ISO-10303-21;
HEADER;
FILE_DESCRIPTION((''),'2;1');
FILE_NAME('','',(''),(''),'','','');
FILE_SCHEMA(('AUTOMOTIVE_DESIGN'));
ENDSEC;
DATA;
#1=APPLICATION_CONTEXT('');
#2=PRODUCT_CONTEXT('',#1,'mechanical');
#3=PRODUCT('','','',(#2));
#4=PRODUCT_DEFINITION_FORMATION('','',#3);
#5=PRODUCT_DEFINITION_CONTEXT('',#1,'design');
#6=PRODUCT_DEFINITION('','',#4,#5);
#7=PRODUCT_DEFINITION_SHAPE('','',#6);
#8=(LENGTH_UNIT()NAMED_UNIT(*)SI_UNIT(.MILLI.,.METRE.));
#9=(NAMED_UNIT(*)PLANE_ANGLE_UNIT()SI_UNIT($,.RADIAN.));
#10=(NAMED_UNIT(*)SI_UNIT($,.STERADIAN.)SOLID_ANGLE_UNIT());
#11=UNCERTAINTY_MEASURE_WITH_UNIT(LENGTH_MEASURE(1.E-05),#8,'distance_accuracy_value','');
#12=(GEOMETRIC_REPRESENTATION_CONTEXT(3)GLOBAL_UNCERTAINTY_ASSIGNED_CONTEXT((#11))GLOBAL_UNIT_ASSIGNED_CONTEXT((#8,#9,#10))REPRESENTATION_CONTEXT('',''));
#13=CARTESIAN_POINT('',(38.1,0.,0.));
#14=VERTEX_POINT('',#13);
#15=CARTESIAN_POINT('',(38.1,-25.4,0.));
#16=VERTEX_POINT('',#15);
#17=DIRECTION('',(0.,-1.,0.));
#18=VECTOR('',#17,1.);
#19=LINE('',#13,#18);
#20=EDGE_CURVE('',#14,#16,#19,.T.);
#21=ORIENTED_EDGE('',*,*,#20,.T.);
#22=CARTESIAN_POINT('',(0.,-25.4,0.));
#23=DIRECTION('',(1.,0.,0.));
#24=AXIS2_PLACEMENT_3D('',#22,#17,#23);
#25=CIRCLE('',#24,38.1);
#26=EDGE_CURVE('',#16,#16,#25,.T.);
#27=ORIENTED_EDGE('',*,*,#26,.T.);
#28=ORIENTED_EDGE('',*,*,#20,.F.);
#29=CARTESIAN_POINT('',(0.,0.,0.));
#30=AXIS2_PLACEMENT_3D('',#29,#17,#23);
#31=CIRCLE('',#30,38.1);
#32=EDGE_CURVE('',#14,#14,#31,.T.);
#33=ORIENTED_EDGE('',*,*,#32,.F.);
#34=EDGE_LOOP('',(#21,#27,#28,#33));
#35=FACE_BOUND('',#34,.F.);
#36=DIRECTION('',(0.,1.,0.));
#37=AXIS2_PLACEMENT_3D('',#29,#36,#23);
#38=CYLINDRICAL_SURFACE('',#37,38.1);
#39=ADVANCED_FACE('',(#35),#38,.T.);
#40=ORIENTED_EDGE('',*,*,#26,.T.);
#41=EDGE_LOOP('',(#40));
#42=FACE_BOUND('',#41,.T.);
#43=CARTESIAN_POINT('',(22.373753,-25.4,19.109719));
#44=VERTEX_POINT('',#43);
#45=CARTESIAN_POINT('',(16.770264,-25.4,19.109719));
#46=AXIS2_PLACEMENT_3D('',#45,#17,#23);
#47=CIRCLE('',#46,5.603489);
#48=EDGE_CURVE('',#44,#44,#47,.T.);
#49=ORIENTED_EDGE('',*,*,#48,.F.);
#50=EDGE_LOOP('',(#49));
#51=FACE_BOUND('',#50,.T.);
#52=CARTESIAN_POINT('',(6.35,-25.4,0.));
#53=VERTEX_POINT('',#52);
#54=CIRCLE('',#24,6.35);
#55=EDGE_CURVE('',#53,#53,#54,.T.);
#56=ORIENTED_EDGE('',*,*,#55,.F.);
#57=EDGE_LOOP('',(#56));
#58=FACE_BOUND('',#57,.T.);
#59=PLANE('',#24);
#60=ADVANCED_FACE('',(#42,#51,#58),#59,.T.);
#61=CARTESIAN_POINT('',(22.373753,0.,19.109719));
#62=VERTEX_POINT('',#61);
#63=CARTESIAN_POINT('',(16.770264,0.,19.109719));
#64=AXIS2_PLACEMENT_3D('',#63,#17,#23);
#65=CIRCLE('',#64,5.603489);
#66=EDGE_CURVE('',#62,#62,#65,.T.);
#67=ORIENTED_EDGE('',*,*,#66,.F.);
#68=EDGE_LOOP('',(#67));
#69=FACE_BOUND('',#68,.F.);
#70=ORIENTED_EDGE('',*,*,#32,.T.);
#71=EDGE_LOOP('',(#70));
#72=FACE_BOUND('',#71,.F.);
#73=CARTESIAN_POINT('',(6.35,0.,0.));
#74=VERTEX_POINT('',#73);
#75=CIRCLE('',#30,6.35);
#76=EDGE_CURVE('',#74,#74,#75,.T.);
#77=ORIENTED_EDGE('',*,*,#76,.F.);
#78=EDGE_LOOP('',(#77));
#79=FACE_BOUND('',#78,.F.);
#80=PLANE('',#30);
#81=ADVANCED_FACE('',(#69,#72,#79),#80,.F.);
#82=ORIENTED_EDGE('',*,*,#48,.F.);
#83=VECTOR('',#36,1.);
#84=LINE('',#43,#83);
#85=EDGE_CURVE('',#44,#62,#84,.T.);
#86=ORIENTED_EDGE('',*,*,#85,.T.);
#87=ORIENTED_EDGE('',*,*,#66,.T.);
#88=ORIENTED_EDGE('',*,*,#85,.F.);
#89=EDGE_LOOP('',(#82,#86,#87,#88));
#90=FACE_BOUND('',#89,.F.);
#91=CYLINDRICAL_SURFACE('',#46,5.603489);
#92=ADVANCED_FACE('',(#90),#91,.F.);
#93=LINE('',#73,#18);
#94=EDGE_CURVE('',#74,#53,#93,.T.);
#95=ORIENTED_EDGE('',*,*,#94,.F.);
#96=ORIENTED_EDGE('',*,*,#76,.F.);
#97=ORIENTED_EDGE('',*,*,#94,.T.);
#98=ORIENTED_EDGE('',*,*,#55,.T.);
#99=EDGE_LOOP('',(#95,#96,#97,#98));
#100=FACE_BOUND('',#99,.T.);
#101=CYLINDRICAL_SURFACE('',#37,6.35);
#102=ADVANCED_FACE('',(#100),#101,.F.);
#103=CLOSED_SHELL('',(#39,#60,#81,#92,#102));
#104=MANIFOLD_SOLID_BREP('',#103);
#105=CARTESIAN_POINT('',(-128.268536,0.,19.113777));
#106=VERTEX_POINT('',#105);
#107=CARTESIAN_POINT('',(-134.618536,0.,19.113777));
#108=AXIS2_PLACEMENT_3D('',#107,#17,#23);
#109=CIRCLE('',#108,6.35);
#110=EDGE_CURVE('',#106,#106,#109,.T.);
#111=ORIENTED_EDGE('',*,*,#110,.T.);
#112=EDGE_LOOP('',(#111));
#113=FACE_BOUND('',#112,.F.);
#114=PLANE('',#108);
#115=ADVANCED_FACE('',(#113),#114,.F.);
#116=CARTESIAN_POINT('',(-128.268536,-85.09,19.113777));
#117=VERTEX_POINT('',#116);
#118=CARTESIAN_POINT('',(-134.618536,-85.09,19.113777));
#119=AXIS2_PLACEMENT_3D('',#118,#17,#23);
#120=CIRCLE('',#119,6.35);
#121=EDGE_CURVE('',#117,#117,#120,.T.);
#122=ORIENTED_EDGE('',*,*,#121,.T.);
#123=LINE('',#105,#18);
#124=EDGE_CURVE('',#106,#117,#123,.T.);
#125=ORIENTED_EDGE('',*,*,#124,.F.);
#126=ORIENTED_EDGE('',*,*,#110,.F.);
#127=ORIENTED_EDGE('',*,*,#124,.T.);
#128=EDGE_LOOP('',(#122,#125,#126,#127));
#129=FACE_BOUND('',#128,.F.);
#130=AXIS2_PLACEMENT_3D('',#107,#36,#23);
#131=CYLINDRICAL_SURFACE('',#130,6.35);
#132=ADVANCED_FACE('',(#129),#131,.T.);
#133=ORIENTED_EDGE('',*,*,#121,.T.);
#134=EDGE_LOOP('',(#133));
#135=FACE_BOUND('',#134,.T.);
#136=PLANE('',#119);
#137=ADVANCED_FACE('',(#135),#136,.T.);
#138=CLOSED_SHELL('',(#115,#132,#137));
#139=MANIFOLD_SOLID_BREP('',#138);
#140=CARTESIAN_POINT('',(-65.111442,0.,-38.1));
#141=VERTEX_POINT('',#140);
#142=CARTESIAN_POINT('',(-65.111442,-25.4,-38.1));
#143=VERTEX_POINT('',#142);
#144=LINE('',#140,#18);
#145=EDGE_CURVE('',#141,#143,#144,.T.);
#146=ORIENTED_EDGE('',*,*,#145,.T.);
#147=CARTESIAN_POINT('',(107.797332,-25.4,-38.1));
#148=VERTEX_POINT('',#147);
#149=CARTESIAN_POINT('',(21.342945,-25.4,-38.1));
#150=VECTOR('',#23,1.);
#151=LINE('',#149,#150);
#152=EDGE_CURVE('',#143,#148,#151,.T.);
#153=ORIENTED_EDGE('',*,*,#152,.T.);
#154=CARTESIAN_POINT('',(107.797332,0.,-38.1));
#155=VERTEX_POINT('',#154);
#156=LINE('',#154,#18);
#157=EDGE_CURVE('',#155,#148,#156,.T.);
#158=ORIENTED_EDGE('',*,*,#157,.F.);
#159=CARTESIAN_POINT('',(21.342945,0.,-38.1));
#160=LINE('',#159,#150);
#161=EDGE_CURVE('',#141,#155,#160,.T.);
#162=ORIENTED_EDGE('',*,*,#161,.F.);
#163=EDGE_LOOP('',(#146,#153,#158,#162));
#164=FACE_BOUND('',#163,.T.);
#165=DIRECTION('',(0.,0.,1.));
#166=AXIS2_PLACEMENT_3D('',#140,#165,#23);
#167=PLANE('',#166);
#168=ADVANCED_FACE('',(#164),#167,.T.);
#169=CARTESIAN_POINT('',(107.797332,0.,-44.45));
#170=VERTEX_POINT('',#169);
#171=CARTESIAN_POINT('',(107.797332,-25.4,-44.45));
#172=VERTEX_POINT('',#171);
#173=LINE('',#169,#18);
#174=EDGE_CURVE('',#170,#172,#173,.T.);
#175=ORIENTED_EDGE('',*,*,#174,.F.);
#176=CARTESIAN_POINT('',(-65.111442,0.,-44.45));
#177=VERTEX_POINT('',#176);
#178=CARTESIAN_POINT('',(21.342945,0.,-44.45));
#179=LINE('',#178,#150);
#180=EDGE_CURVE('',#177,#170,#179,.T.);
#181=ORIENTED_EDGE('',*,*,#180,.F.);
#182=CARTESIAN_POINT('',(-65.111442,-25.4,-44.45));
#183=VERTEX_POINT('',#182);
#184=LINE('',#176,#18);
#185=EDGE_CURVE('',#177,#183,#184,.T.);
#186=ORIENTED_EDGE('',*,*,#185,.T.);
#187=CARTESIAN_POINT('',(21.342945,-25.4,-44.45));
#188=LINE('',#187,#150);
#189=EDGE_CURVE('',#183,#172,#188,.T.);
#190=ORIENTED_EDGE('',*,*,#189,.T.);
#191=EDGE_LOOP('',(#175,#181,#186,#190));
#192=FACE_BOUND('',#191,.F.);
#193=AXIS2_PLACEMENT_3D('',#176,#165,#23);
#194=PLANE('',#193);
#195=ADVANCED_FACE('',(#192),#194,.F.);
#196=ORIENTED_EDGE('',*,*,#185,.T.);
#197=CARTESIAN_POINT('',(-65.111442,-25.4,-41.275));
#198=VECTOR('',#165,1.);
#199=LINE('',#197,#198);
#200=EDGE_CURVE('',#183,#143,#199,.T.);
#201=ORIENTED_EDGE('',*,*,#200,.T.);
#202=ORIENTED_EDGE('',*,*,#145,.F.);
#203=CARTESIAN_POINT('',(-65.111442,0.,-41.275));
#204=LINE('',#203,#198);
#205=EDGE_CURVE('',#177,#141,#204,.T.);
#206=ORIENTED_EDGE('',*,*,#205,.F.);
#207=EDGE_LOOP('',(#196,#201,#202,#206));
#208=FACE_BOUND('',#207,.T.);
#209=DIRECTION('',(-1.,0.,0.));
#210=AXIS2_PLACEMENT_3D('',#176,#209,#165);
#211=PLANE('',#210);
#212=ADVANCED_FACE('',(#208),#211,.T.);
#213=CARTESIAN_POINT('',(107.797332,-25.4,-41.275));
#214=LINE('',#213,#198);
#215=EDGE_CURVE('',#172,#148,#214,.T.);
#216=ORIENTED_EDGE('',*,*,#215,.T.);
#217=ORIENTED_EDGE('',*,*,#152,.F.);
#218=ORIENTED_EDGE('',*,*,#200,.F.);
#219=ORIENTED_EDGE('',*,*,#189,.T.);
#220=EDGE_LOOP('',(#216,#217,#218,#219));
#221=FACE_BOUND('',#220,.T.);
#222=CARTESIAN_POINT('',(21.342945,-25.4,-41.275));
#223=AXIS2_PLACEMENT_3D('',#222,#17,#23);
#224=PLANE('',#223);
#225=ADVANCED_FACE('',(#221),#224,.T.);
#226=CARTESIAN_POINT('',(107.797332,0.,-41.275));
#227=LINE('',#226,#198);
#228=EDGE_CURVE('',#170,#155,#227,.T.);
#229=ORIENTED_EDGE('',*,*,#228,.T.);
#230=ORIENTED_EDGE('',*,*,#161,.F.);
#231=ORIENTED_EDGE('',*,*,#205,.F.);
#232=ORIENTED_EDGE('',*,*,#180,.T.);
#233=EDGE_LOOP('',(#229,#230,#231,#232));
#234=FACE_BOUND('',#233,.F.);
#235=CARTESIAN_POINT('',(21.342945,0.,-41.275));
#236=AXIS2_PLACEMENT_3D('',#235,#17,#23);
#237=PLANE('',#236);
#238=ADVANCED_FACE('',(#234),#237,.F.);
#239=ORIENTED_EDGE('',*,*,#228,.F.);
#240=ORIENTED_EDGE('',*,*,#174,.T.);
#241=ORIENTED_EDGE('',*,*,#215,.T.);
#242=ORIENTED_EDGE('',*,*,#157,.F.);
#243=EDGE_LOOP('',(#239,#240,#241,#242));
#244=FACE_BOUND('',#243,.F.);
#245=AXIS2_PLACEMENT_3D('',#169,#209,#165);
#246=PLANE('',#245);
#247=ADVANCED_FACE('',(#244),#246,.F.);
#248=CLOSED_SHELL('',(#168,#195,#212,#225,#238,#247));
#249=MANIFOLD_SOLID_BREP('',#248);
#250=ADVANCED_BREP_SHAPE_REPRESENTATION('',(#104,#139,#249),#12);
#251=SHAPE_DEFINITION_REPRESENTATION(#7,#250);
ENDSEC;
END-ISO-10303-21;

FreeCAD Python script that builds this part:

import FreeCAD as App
import Part
import Sketcher
from FreeCAD import Vector
Q = App.Units.Quantity


def add_polygon(sketch, points):
    """Adds a closed chain of lines whose ends are joined by coincident constraints."""
    first, n = sketch.GeometryCount, len(points)
    for a, b in zip(points, points[1:] + points[:1]):
        sketch.addGeometry(Part.LineSegment(App.Vector(*a, 0), App.Vector(*b, 0)), False)
    for i in range(n):
        sketch.addConstraint(Sketcher.Constraint("Coincident", first + i, 2, first + (i + 1) % n, 1))

doc = App.newDocument("Part")
params = doc.addObject("Spreadsheet::Sheet", "Params")
for row, (alias, value) in enumerate([
    ("sketch1_diameter", "3 in"),
    ("sketch1_diameter2", "0.5 in"),
    ("pad1_length", "1 in"),
    ("pocket1_length", "1 in"),
    ("sketch3_height", "0.25 in"),
    ("pad2_length", "1 in"),
    ("sketch4_diameter", "0.5 in"),
    ("pad3_length", "3.35 in"),
], start=1):
    params.set(f"A{row}", alias)
    params.set(f"B{row}", "=" + value)
    params.setAlias(f"B{row}", alias)

body = doc.addObject("PartDesign::Body", "Body")

sketch1 = doc.addObject("Sketcher::SketchObject", "Sketch")
body.addObject(sketch1)
sketch1.AttachmentSupport = (doc.XZ_Plane, [""])
sketch1.MapMode = "FlatFace"
sketch1.addGeometry([
    Part.Circle(Vector(0, 0, 0), Vector(0, 0, 1), 38),
    Part.Circle(Vector(0, 0, 0), Vector(0, 0, 1), 6),
], False)
sketch1.addConstraint([
    Sketcher.Constraint("Coincident", 0, 3, -1, 1),
    Sketcher.Constraint("Coincident", 1, 3, -1, 1),
    Sketcher.Constraint("Diameter", 0, Q("3 in")),
    Sketcher.Constraint("Diameter", 1, Q("0.5 in")),
])
sketch1.setExpression("Constraints[2]", "Params.sketch1_diameter")
sketch1.setExpression("Constraints[3]", "Params.sketch1_diameter2")
pad1 = doc.addObject("PartDesign::Pad", "Pad")
body.addObject(pad1)
pad1.Profile = sketch1
pad1.setExpression("Length", "Params.pad1_length")

sketch2 = doc.addObject("Sketcher::SketchObject", "Sketch001")
body.addObject(sketch2)
sketch2.AttachmentSupport = (doc.XZ_Plane, [""])
sketch2.MapMode = "FlatFace"
sketch2.AttachmentOffset = App.Placement(Vector(0, 0, 1 * 25.4), App.Rotation())
sketch2.addGeometry(Part.Circle(Vector(17, 19, 0), Vector(0, 0, 1), 6), False)
sketch2.addConstraint([
    Sketcher.Constraint("Diameter", 0, 11.206978),
    Sketcher.Constraint("DistanceY", -1, 1, 0, 3, 19.109719),
    Sketcher.Constraint("DistanceX", -1, 1, 0, 3, 16.770264),
])
pocket1 = doc.addObject("PartDesign::Pocket", "Pocket")
body.addObject(pocket1)
pocket1.Profile = sketch2
pocket1.setExpression("Length", "Params.pocket1_length")
body2 = doc.addObject("PartDesign::Body", "Body001")

sketch3 = doc.addObject("Sketcher::SketchObject", "Sketch002")
body2.addObject(sketch3)
sketch3.AttachmentSupport = (doc.getObject("XZ_Plane001"), [""])
sketch3.MapMode = "FlatFace"
add_polygon(sketch3, [(-65, -38), (-65, -44), (108, -44), (108, -38)])
sketch3.addConstraint([
    Sketcher.Constraint("Vertical", 0),
    Sketcher.Constraint("Horizontal", 1),
    Sketcher.Constraint("Vertical", 2),
    Sketcher.Constraint("Horizontal", 3),
    Sketcher.Constraint("DistanceY", 0, 2, 0, 1, Q("0.25 in")),
    Sketcher.Constraint("DistanceY", 2, 2, -1, 1, Q("1.5 in")),
    Sketcher.Constraint("DistanceX", 1, 1, 1, 2, 172.908775),
    Sketcher.Constraint("DistanceX", 0, 2, -1, 1, 65.111442),
])
sketch3.setExpression("Constraints[8]", "Params.sketch3_height")
pad2 = doc.addObject("PartDesign::Pad", "Pad001")
body2.addObject(pad2)
pad2.Profile = sketch3
pad2.setExpression("Length", "Params.pad2_length")
body3 = doc.addObject("PartDesign::Body", "Body002")

sketch4 = doc.addObject("Sketcher::SketchObject", "Sketch003")
body3.addObject(sketch4)
sketch4.AttachmentSupport = (doc.getObject("XZ_Plane002"), [""])
sketch4.MapMode = "FlatFace"
sketch4.addGeometry(Part.Circle(Vector(-135, 19, 0), Vector(0, 0, 1), 6), False)
sketch4.addConstraint([
    Sketcher.Constraint("Diameter", 0, Q("0.5 in")),
    Sketcher.Constraint("DistanceX", 0, 3, -1, 1, 134.618536),
    Sketcher.Constraint("DistanceY", -1, 1, 0, 3, 19.113777),
])
sketch4.setExpression("Constraints[0]", "Params.sketch4_diameter")
pad3 = doc.addObject("PartDesign::Pad", "Pad002")
body3.addObject(pad3)
pad3.Profile = sketch4
pad3.setExpression("Length", "Params.pad3_length")

doc.recompute()
